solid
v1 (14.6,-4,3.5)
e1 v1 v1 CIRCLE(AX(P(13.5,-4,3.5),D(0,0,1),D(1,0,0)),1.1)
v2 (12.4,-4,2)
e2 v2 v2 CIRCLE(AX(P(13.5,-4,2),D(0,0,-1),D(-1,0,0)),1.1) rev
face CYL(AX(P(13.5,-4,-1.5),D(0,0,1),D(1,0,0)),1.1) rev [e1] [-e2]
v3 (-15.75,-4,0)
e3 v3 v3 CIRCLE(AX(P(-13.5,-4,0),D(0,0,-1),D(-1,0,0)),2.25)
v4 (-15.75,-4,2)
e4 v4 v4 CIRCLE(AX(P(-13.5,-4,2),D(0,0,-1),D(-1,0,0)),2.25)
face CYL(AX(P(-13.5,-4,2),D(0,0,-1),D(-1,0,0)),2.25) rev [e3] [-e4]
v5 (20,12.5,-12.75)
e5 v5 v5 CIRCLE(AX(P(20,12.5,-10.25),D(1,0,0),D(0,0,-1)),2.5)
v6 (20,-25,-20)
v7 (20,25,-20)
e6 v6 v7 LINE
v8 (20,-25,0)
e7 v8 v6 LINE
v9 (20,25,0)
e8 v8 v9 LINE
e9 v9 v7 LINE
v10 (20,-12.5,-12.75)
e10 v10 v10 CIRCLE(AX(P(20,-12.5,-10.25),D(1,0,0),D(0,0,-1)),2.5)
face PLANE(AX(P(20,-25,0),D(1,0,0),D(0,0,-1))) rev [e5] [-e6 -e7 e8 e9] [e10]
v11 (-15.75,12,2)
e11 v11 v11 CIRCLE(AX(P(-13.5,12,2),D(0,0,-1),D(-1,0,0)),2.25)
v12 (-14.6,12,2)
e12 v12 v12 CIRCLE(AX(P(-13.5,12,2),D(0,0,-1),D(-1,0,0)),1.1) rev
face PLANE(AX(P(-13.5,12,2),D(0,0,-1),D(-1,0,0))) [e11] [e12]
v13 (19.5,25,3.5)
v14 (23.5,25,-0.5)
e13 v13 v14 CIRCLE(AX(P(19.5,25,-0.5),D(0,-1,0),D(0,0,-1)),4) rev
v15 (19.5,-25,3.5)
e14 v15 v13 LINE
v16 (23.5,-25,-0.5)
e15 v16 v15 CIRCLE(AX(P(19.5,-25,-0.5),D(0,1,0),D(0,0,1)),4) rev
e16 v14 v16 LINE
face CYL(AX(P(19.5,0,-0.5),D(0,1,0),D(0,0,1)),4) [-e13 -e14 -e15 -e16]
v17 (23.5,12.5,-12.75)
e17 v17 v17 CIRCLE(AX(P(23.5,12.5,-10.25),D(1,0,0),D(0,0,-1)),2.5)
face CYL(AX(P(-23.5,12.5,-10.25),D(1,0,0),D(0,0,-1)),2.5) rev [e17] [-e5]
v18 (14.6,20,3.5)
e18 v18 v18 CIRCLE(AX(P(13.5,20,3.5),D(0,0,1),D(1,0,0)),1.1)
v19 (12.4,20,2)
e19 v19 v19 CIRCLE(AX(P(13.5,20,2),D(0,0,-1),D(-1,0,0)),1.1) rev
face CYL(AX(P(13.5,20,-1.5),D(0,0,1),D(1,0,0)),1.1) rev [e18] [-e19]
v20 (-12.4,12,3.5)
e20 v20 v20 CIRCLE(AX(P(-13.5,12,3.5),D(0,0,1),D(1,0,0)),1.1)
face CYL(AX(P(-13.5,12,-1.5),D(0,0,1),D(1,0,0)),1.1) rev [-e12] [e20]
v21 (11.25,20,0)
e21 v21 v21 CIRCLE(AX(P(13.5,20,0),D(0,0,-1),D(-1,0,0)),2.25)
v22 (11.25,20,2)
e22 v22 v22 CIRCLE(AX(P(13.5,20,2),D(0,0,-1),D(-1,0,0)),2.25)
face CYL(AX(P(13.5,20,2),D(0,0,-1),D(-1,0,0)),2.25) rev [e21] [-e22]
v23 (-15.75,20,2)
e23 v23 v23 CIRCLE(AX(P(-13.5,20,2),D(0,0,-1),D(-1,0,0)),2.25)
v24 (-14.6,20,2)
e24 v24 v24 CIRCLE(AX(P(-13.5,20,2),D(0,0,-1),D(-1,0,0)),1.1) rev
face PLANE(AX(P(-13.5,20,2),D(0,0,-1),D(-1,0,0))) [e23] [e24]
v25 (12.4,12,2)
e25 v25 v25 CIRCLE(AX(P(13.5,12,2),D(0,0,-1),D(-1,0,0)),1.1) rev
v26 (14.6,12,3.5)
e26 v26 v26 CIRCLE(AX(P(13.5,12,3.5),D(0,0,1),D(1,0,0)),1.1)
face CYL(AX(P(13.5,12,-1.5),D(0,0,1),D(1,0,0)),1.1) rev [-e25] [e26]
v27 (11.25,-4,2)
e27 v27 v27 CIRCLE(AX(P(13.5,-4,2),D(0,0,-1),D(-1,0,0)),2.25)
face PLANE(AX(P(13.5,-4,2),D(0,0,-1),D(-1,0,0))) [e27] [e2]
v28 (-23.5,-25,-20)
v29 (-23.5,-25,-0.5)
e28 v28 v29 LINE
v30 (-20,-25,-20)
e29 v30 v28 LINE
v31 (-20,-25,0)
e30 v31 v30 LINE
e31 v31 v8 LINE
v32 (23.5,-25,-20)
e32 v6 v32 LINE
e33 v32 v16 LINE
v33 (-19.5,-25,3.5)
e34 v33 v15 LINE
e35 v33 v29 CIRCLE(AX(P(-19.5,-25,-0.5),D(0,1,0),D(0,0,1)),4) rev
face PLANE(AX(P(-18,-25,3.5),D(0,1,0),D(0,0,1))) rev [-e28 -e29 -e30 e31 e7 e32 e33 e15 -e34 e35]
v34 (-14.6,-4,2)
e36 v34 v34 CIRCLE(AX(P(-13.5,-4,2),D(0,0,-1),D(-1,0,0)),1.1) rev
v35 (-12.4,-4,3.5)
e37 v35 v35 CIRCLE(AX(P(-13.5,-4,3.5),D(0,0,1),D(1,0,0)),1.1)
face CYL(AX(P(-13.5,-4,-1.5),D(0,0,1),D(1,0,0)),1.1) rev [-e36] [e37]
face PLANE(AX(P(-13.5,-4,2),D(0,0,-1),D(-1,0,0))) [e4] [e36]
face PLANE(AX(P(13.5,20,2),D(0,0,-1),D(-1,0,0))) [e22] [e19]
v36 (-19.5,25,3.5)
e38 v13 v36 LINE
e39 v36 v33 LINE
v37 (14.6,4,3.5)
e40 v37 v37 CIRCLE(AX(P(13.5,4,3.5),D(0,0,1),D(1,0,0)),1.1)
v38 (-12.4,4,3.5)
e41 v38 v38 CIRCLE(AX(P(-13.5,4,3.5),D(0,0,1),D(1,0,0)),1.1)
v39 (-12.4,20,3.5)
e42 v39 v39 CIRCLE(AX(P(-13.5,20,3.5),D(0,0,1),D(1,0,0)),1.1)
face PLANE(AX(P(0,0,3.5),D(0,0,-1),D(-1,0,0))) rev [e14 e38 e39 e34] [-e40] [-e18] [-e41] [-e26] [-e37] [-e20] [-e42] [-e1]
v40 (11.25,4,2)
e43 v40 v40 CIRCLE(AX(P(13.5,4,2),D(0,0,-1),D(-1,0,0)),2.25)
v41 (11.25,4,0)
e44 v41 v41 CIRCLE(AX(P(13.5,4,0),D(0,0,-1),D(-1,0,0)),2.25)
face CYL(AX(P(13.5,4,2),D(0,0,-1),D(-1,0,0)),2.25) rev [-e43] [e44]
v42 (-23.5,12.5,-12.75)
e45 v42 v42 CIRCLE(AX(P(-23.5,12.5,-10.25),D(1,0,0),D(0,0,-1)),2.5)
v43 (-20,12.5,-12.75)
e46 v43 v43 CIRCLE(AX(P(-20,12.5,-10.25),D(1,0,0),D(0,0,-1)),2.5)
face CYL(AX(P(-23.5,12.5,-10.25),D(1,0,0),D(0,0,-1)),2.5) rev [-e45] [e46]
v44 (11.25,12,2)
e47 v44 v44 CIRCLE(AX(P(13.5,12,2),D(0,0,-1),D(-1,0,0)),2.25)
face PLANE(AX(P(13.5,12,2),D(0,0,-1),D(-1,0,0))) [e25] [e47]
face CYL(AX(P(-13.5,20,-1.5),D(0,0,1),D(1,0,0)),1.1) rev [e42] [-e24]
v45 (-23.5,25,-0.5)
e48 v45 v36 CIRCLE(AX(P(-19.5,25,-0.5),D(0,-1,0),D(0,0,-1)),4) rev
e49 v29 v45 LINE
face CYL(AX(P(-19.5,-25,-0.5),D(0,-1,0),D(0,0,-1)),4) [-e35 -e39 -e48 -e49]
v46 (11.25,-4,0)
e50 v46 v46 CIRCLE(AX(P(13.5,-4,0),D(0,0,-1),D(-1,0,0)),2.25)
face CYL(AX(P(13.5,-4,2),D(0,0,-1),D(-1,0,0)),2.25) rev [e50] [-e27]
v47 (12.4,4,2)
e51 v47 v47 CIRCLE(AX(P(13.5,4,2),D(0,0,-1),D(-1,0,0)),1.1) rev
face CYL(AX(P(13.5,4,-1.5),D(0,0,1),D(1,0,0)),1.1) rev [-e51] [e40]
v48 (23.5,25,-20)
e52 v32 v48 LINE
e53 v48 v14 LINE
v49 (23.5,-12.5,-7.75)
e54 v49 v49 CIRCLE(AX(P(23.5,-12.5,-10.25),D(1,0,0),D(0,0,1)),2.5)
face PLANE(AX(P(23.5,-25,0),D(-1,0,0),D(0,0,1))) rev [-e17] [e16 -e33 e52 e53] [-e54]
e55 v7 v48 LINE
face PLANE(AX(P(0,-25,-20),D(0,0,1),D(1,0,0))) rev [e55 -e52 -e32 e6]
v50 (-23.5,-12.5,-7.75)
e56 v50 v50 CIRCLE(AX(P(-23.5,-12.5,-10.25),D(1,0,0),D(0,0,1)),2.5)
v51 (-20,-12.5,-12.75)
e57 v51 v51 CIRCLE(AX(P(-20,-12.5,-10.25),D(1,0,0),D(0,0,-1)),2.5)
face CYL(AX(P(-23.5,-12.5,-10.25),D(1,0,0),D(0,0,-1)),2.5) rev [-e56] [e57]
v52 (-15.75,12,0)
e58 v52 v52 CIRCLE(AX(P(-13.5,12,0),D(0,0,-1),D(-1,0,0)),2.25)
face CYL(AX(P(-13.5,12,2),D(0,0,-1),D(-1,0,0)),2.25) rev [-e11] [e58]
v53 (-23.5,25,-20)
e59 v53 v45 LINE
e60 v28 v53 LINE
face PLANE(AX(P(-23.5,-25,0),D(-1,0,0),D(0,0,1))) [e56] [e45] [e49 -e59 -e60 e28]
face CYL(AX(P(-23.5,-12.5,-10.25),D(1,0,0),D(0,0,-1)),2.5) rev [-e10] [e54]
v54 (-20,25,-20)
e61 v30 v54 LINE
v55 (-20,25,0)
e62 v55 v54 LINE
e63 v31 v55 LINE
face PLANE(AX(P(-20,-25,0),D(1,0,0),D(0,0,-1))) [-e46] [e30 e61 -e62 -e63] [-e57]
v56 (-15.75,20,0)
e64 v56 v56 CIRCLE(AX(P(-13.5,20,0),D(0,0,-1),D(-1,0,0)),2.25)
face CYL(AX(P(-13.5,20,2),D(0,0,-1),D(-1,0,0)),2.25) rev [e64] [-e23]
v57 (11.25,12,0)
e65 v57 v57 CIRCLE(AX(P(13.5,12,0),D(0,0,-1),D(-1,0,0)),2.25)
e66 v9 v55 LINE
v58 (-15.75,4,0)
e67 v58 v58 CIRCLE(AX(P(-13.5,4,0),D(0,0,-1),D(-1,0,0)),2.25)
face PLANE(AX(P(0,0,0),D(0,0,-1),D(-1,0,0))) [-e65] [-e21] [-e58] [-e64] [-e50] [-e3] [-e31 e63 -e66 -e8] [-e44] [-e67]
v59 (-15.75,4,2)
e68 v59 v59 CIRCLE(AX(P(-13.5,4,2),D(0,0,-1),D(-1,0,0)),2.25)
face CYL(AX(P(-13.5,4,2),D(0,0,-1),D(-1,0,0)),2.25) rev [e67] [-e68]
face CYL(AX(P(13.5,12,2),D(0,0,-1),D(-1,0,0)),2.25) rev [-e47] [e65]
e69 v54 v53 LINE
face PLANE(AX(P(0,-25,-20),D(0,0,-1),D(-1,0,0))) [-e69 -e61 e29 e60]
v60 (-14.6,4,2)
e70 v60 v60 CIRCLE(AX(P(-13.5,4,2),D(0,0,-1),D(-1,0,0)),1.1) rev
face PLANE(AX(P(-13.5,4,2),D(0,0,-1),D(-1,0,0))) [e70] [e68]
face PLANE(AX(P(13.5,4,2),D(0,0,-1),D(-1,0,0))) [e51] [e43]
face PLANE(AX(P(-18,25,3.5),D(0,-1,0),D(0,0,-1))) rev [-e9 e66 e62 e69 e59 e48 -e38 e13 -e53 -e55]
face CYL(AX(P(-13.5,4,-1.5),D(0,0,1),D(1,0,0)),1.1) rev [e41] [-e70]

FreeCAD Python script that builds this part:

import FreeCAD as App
import Part
import Sketcher


def edges_at(feature, points):
    """Names of the edges that pass closest to the given points."""
    edges = feature.Shape.Edges
    near = lambda p: min(range(len(edges)), key=lambda i: edges[i].distToShape(Part.Vertex(*p))[0])
    return sorted({f"Edge{near(p) + 1}" for p in points})


def add_polygon(sketch, points):
    """Adds a closed chain of lines whose ends are joined by coincident constraints."""
    first, n = sketch.GeometryCount, len(points)
    for a, b in zip(points, points[1:] + points[:1]):
        sketch.addGeometry(Part.LineSegment(App.Vector(*a, 0), App.Vector(*b, 0)), False)
    for i in range(n):
        sketch.addConstraint(Sketcher.Constraint("Coincident", first + i, 2, first + (i + 1) % n, 1))

doc = App.newDocument("Part")
params = doc.addObject("Spreadsheet::Sheet", "Params")
for row, (alias, value) in enumerate([
    ("sketch1_width", "36 mm"),
    ("sketch1_height", "50 mm"),
    ("pad1_length", "3.5 mm"),
    ("sketch2_diameter", "2.2 mm"),
    ("pocket1_length", "5 mm"),
    ("sketch3_width", "2 mm"),
    ("sketch3_height", "20 mm"),
    ("sketch3_width2", "3.5 mm"),
    ("pad2_length", "50 mm"),
    ("fillet_radius", "4 mm"),
    ("sketch4_diameter", "4.5 mm"),
    ("pocket2_length", "2 mm"),
    ("sketch5_diameter", "5 mm"),
], start=1):
    params.set(f"A{row}", alias)
    params.set(f"B{row}", "=" + value)
    params.setAlias(f"B{row}", alias)

body = doc.addObject("PartDesign::Body", "Body")

sketch1 = body.newObject("Sketcher::SketchObject", "Sketch")
sketch1.AttachmentSupport = (doc.getObject("XY_Plane"), [""])
sketch1.MapMode = "FlatFace"
add_polygon(sketch1, [(-18, 25), (-18, -25), (18, -25), (18, 25)])
sketch1.addConstraint([
    Sketcher.Constraint("Vertical", 0),
    Sketcher.Constraint("Horizontal", 1),
    Sketcher.Constraint("Vertical", 2),
    Sketcher.Constraint("Horizontal", 3),
    Sketcher.Constraint("Symmetric", 0, 2, 2, 2, -1, 1),
    Sketcher.Constraint("DistanceX", 1, 1, 1, 2, 36.0),
    Sketcher.Constraint("DistanceY", 0, 2, 0, 1, 50.0),
])
sketch1.setExpression("Constraints[9]", "Params.sketch1_width")
sketch1.setExpression("Constraints[10]", "Params.sketch1_height")
pad1 = body.newObject("PartDesign::Pad", "Pad")
pad1.Profile = sketch1
pad1.setExpression("Length", "Params.pad1_length")

sketch2 = body.newObject("Sketcher::SketchObject", "Sketch001")
sketch2.AttachmentSupport = (doc.getObject("XY_Plane"), [""])
sketch2.MapMode = "FlatFace"
sketch2.AttachmentOffset = App.Placement(App.Vector(0, 0, 3.5), App.Rotation())
sketch2.addGeometry([
    Part.Circle(App.Vector(-13.5, 20, 0), App.Vector(0, 0, 1), 1.1),
    Part.Circle(App.Vector(13.5, 20, 0), App.Vector(0, 0, 1), 1.1),
    Part.Circle(App.Vector(13.5, 12, 0), App.Vector(0, 0, 1), 1.1),
    Part.Circle(App.Vector(13.5, 4, 0), App.Vector(0, 0, 1), 1.1),
    Part.Circle(App.Vector(13.5, -4, 0), App.Vector(0, 0, 1), 1.1),
    Part.Circle(App.Vector(-13.5, 12, 0), App.Vector(0, 0, 1), 1.1),
    Part.Circle(App.Vector(-13.5, 4, 0), App.Vector(0, 0, 1), 1.1),
    Part.Circle(App.Vector(-13.5, -4, 0), App.Vector(0, 0, 1), 1.1),
], False)
sketch2.addConstraint([
    Sketcher.Constraint("Equal", 0, 1),
    Sketcher.Constraint("Equal", 1, 2),
    Sketcher.Constraint("Equal", 2, 3),
    Sketcher.Constraint("Equal", 3, 4),
    Sketcher.Constraint("Equal", 4, 5),
    Sketcher.Constraint("Equal", 5, 6),
    Sketcher.Constraint("Equal", 6, 7),
    Sketcher.Constraint("Symmetric", 4, 3, 6, 3, -1, 1),
    Sketcher.Constraint("Symmetric", 3, 3, 7, 3, -1, 1),
    Sketcher.Constraint("Symmetric", 0, 3, 1, 3, -2),
    Sketcher.Constraint("Symmetric", 2, 3, 5, 3, -2),
    Sketcher.Constraint("Symmetric", 3, 3, 6, 3, -2),
    Sketcher.Constraint("Vertical", 1, 3, 2, 3),
    Sketcher.Constraint("Vertical", 2, 3, 3, 3),
    Sketcher.Constraint("Diameter", 0, 2.2),
    Sketcher.Constraint("DistanceY", -1, 1, 0, 3, 20.0),
    Sketcher.Constraint("DistanceY", -1, 1, 2, 3, 12.0),
    Sketcher.Constraint("DistanceY", -1, 1, 3, 3, 4.0),
    Sketcher.Constraint("DistanceX", 0, 3, 1, 3, 27.0),
])
sketch2.setExpression("Constraints[14]", "Params.sketch2_diameter")
pocket1 = body.newObject("PartDesign::Pocket", "Pocket")
pocket1.Profile = sketch2
pocket1.setExpression("Length", "Params.pocket1_length")

sketch3 = body.newObject("Sketcher::SketchObject", "Sketch002")
sketch3.AttachmentSupport = (doc.getObject("XZ_Plane"), [""])
sketch3.MapMode = "FlatFace"
sketch3.AttachmentOffset = App.Placement(App.Vector(0, 0, -25), App.Rotation())
add_polygon(sketch3, [(-18, 0), (-20, 0), (-20, -20), (-23.5, -20), (-23.5, 3.5), (-18, 3.5)])
add_polygon(sketch3, [(18, 0), (18, 3.5), (23.5, 3.5), (23.5, -20), (20, -20), (20, 0)])
sketch3.addConstraint([
    Sketcher.Constraint("Horizontal", 0),
    Sketcher.Constraint("Vertical", 1),
    Sketcher.Constraint("Horizontal", 2),
    Sketcher.Constraint("Vertical", 3),
    Sketcher.Constraint("Horizontal", 4),
    Sketcher.Constraint("Vertical", 5),
    Sketcher.Constraint("Vertical", 6),
    Sketcher.Constraint("Horizontal", 7),
    Sketcher.Constraint("Vertical", 8),
    Sketcher.Constraint("Horizontal", 9),
    Sketcher.Constraint("Vertical", 10),
    Sketcher.Constraint("Horizontal", 11),
    Sketcher.Constraint("Symmetric", 0, 2, 10, 2, -1, 1),
    Sketcher.Constraint("Symmetric", 4, 2, 6, 2, -2),
    Sketcher.Constraint("Symmetric", 2, 2, 8, 2, -2),
    Sketcher.Constraint("PointOnObject", 0, 2, -1),
    Sketcher.Constraint("Equal", 9, 5),
    Sketcher.Constraint("DistanceX", 0, 2, 0, 1, 2.0),
    Sketcher.Constraint("DistanceY", 1, 2, 1, 1, 20.0),
    Sketcher.Constraint("DistanceX", 2, 2, 2, 1, 3.5),
    Sketcher.Constraint("DistanceX", 0, 2, -1, 1, 20.0),
])
sketch3.setExpression("Constraints[29]", "Params.sketch3_width")
sketch3.setExpression("Constraints[30]", "Params.sketch3_height")
sketch3.setExpression("Constraints[31]", "Params.sketch3_width2")
pad2 = body.newObject("PartDesign::Pad", "Pad001")
pad2.Profile = sketch3
pad2.setExpression("Length", "Params.pad2_length")
doc.recompute()

fillet = body.newObject("PartDesign::Fillet", "Fillet")
fillet.Base = (pad2, edges_at(pad2, [(-23.5, 0, 3.5), (23.5, 0, 3.5)]))
fillet.setExpression("Radius", "Params.fillet_radius")

sketch4 = body.newObject("Sketcher::SketchObject", "Sketch003")
sketch4.AttachmentSupport = (doc.getObject("XY_Plane"), [""])
sketch4.MapMode = "FlatFace"
sketch4.addGeometry([
    Part.Circle(App.Vector(13.5, 20, 0), App.Vector(0, 0, 1), 2.2),
    Part.Circle(App.Vector(-13.5, 20, 0), App.Vector(0, 0, 1), 2.2),
    Part.Circle(App.Vector(-13.5, 12, 0), App.Vector(0, 0, 1), 2.2),
    Part.Circle(App.Vector(-13.5, 4, 0), App.Vector(0, 0, 1), 2.2),
    Part.Circle(App.Vector(-13.5, -4, 0), App.Vector(0, 0, 1), 2.2),
    Part.Circle(App.Vector(13.5, 12, 0), App.Vector(0, 0, 1), 2.2),
    Part.Circle(App.Vector(13.5, 4, 0), App.Vector(0, 0, 1), 2.2),
    Part.Circle(App.Vector(13.5, -4, 0), App.Vector(0, 0, 1), 2.2),
], False)
sketch4.addConstraint([
    Sketcher.Constraint("Equal", 0, 1),
    Sketcher.Constraint("Equal", 1, 2),
    Sketcher.Constraint("Equal", 2, 3),
    Sketcher.Constraint("Equal", 3, 4),
    Sketcher.Constraint("Equal", 4, 5),
    Sketcher.Constraint("Equal", 5, 6),
    Sketcher.Constraint("Equal", 6, 7),
    Sketcher.Constraint("Symmetric", 4, 3, 6, 3, -1, 1),
    Sketcher.Constraint("Symmetric", 3, 3, 7, 3, -1, 1),
    Sketcher.Constraint("Symmetric", 0, 3, 1, 3, -2),
    Sketcher.Constraint("Symmetric", 2, 3, 5, 3, -2),
    Sketcher.Constraint("Symmetric", 3, 3, 6, 3, -2),
    Sketcher.Constraint("Vertical", 1, 3, 2, 3),
    Sketcher.Constraint("Vertical", 2, 3, 3, 3),
    Sketcher.Constraint("Diameter", 0, 4.5),
    Sketcher.Constraint("DistanceY", -1, 1, 0, 3, 20.0),
    Sketcher.Constraint("DistanceY", -1, 1, 2, 3, 12.0),
    Sketcher.Constraint("DistanceY", -1, 1, 3, 3, 4.0),
    Sketcher.Constraint("DistanceX", 1, 3, 0, 3, 27.0),
])
sketch4.setExpression("Constraints[14]", "Params.sketch4_diameter")
pocket2 = body.newObject("PartDesign::Pocket", "Pocket001")
pocket2.Profile = sketch4
pocket2.setExpression("Length", "Params.pocket2_length")
pocket2.Reversed = True

sketch5 = body.newObject("Sketcher::SketchObject", "Sketch004")
sketch5.AttachmentSupport = (doc.getObject("YZ_Plane"), [""])
sketch5.MapMode = "FlatFace"
sketch5.AttachmentOffset = App.Placement(App.Vector(0, 0, 23.5), App.Rotation())
sketch5.addGeometry([
    Part.Circle(App.Vector(12.5, -10.2, 0), App.Vector(0, 0, 1), 2.5),
    Part.Circle(App.Vector(-12.5, -10.2, 0), App.Vector(0, 0, 1), 2.5),
], False)
sketch5.addConstraint([
    Sketcher.Constraint("Equal", 0, 1),
    Sketcher.Constraint("Symmetric", 0, 3, 1, 3, -2),
    Sketcher.Constraint("Diameter", 0, 5.0),
    Sketcher.Constraint("DistanceX", 1, 3, 0, 3, 25.0),
    Sketcher.Constraint("DistanceY", 0, 3, -1, 1, 10.25),
])
sketch5.setExpression("Constraints[2]", "Params.sketch5_diameter")
pocket3 = body.newObject("PartDesign::Pocket", "Pocket002")
pocket3.Profile = sketch5
pocket3.Type = "ThroughAll"

doc.recompute()
